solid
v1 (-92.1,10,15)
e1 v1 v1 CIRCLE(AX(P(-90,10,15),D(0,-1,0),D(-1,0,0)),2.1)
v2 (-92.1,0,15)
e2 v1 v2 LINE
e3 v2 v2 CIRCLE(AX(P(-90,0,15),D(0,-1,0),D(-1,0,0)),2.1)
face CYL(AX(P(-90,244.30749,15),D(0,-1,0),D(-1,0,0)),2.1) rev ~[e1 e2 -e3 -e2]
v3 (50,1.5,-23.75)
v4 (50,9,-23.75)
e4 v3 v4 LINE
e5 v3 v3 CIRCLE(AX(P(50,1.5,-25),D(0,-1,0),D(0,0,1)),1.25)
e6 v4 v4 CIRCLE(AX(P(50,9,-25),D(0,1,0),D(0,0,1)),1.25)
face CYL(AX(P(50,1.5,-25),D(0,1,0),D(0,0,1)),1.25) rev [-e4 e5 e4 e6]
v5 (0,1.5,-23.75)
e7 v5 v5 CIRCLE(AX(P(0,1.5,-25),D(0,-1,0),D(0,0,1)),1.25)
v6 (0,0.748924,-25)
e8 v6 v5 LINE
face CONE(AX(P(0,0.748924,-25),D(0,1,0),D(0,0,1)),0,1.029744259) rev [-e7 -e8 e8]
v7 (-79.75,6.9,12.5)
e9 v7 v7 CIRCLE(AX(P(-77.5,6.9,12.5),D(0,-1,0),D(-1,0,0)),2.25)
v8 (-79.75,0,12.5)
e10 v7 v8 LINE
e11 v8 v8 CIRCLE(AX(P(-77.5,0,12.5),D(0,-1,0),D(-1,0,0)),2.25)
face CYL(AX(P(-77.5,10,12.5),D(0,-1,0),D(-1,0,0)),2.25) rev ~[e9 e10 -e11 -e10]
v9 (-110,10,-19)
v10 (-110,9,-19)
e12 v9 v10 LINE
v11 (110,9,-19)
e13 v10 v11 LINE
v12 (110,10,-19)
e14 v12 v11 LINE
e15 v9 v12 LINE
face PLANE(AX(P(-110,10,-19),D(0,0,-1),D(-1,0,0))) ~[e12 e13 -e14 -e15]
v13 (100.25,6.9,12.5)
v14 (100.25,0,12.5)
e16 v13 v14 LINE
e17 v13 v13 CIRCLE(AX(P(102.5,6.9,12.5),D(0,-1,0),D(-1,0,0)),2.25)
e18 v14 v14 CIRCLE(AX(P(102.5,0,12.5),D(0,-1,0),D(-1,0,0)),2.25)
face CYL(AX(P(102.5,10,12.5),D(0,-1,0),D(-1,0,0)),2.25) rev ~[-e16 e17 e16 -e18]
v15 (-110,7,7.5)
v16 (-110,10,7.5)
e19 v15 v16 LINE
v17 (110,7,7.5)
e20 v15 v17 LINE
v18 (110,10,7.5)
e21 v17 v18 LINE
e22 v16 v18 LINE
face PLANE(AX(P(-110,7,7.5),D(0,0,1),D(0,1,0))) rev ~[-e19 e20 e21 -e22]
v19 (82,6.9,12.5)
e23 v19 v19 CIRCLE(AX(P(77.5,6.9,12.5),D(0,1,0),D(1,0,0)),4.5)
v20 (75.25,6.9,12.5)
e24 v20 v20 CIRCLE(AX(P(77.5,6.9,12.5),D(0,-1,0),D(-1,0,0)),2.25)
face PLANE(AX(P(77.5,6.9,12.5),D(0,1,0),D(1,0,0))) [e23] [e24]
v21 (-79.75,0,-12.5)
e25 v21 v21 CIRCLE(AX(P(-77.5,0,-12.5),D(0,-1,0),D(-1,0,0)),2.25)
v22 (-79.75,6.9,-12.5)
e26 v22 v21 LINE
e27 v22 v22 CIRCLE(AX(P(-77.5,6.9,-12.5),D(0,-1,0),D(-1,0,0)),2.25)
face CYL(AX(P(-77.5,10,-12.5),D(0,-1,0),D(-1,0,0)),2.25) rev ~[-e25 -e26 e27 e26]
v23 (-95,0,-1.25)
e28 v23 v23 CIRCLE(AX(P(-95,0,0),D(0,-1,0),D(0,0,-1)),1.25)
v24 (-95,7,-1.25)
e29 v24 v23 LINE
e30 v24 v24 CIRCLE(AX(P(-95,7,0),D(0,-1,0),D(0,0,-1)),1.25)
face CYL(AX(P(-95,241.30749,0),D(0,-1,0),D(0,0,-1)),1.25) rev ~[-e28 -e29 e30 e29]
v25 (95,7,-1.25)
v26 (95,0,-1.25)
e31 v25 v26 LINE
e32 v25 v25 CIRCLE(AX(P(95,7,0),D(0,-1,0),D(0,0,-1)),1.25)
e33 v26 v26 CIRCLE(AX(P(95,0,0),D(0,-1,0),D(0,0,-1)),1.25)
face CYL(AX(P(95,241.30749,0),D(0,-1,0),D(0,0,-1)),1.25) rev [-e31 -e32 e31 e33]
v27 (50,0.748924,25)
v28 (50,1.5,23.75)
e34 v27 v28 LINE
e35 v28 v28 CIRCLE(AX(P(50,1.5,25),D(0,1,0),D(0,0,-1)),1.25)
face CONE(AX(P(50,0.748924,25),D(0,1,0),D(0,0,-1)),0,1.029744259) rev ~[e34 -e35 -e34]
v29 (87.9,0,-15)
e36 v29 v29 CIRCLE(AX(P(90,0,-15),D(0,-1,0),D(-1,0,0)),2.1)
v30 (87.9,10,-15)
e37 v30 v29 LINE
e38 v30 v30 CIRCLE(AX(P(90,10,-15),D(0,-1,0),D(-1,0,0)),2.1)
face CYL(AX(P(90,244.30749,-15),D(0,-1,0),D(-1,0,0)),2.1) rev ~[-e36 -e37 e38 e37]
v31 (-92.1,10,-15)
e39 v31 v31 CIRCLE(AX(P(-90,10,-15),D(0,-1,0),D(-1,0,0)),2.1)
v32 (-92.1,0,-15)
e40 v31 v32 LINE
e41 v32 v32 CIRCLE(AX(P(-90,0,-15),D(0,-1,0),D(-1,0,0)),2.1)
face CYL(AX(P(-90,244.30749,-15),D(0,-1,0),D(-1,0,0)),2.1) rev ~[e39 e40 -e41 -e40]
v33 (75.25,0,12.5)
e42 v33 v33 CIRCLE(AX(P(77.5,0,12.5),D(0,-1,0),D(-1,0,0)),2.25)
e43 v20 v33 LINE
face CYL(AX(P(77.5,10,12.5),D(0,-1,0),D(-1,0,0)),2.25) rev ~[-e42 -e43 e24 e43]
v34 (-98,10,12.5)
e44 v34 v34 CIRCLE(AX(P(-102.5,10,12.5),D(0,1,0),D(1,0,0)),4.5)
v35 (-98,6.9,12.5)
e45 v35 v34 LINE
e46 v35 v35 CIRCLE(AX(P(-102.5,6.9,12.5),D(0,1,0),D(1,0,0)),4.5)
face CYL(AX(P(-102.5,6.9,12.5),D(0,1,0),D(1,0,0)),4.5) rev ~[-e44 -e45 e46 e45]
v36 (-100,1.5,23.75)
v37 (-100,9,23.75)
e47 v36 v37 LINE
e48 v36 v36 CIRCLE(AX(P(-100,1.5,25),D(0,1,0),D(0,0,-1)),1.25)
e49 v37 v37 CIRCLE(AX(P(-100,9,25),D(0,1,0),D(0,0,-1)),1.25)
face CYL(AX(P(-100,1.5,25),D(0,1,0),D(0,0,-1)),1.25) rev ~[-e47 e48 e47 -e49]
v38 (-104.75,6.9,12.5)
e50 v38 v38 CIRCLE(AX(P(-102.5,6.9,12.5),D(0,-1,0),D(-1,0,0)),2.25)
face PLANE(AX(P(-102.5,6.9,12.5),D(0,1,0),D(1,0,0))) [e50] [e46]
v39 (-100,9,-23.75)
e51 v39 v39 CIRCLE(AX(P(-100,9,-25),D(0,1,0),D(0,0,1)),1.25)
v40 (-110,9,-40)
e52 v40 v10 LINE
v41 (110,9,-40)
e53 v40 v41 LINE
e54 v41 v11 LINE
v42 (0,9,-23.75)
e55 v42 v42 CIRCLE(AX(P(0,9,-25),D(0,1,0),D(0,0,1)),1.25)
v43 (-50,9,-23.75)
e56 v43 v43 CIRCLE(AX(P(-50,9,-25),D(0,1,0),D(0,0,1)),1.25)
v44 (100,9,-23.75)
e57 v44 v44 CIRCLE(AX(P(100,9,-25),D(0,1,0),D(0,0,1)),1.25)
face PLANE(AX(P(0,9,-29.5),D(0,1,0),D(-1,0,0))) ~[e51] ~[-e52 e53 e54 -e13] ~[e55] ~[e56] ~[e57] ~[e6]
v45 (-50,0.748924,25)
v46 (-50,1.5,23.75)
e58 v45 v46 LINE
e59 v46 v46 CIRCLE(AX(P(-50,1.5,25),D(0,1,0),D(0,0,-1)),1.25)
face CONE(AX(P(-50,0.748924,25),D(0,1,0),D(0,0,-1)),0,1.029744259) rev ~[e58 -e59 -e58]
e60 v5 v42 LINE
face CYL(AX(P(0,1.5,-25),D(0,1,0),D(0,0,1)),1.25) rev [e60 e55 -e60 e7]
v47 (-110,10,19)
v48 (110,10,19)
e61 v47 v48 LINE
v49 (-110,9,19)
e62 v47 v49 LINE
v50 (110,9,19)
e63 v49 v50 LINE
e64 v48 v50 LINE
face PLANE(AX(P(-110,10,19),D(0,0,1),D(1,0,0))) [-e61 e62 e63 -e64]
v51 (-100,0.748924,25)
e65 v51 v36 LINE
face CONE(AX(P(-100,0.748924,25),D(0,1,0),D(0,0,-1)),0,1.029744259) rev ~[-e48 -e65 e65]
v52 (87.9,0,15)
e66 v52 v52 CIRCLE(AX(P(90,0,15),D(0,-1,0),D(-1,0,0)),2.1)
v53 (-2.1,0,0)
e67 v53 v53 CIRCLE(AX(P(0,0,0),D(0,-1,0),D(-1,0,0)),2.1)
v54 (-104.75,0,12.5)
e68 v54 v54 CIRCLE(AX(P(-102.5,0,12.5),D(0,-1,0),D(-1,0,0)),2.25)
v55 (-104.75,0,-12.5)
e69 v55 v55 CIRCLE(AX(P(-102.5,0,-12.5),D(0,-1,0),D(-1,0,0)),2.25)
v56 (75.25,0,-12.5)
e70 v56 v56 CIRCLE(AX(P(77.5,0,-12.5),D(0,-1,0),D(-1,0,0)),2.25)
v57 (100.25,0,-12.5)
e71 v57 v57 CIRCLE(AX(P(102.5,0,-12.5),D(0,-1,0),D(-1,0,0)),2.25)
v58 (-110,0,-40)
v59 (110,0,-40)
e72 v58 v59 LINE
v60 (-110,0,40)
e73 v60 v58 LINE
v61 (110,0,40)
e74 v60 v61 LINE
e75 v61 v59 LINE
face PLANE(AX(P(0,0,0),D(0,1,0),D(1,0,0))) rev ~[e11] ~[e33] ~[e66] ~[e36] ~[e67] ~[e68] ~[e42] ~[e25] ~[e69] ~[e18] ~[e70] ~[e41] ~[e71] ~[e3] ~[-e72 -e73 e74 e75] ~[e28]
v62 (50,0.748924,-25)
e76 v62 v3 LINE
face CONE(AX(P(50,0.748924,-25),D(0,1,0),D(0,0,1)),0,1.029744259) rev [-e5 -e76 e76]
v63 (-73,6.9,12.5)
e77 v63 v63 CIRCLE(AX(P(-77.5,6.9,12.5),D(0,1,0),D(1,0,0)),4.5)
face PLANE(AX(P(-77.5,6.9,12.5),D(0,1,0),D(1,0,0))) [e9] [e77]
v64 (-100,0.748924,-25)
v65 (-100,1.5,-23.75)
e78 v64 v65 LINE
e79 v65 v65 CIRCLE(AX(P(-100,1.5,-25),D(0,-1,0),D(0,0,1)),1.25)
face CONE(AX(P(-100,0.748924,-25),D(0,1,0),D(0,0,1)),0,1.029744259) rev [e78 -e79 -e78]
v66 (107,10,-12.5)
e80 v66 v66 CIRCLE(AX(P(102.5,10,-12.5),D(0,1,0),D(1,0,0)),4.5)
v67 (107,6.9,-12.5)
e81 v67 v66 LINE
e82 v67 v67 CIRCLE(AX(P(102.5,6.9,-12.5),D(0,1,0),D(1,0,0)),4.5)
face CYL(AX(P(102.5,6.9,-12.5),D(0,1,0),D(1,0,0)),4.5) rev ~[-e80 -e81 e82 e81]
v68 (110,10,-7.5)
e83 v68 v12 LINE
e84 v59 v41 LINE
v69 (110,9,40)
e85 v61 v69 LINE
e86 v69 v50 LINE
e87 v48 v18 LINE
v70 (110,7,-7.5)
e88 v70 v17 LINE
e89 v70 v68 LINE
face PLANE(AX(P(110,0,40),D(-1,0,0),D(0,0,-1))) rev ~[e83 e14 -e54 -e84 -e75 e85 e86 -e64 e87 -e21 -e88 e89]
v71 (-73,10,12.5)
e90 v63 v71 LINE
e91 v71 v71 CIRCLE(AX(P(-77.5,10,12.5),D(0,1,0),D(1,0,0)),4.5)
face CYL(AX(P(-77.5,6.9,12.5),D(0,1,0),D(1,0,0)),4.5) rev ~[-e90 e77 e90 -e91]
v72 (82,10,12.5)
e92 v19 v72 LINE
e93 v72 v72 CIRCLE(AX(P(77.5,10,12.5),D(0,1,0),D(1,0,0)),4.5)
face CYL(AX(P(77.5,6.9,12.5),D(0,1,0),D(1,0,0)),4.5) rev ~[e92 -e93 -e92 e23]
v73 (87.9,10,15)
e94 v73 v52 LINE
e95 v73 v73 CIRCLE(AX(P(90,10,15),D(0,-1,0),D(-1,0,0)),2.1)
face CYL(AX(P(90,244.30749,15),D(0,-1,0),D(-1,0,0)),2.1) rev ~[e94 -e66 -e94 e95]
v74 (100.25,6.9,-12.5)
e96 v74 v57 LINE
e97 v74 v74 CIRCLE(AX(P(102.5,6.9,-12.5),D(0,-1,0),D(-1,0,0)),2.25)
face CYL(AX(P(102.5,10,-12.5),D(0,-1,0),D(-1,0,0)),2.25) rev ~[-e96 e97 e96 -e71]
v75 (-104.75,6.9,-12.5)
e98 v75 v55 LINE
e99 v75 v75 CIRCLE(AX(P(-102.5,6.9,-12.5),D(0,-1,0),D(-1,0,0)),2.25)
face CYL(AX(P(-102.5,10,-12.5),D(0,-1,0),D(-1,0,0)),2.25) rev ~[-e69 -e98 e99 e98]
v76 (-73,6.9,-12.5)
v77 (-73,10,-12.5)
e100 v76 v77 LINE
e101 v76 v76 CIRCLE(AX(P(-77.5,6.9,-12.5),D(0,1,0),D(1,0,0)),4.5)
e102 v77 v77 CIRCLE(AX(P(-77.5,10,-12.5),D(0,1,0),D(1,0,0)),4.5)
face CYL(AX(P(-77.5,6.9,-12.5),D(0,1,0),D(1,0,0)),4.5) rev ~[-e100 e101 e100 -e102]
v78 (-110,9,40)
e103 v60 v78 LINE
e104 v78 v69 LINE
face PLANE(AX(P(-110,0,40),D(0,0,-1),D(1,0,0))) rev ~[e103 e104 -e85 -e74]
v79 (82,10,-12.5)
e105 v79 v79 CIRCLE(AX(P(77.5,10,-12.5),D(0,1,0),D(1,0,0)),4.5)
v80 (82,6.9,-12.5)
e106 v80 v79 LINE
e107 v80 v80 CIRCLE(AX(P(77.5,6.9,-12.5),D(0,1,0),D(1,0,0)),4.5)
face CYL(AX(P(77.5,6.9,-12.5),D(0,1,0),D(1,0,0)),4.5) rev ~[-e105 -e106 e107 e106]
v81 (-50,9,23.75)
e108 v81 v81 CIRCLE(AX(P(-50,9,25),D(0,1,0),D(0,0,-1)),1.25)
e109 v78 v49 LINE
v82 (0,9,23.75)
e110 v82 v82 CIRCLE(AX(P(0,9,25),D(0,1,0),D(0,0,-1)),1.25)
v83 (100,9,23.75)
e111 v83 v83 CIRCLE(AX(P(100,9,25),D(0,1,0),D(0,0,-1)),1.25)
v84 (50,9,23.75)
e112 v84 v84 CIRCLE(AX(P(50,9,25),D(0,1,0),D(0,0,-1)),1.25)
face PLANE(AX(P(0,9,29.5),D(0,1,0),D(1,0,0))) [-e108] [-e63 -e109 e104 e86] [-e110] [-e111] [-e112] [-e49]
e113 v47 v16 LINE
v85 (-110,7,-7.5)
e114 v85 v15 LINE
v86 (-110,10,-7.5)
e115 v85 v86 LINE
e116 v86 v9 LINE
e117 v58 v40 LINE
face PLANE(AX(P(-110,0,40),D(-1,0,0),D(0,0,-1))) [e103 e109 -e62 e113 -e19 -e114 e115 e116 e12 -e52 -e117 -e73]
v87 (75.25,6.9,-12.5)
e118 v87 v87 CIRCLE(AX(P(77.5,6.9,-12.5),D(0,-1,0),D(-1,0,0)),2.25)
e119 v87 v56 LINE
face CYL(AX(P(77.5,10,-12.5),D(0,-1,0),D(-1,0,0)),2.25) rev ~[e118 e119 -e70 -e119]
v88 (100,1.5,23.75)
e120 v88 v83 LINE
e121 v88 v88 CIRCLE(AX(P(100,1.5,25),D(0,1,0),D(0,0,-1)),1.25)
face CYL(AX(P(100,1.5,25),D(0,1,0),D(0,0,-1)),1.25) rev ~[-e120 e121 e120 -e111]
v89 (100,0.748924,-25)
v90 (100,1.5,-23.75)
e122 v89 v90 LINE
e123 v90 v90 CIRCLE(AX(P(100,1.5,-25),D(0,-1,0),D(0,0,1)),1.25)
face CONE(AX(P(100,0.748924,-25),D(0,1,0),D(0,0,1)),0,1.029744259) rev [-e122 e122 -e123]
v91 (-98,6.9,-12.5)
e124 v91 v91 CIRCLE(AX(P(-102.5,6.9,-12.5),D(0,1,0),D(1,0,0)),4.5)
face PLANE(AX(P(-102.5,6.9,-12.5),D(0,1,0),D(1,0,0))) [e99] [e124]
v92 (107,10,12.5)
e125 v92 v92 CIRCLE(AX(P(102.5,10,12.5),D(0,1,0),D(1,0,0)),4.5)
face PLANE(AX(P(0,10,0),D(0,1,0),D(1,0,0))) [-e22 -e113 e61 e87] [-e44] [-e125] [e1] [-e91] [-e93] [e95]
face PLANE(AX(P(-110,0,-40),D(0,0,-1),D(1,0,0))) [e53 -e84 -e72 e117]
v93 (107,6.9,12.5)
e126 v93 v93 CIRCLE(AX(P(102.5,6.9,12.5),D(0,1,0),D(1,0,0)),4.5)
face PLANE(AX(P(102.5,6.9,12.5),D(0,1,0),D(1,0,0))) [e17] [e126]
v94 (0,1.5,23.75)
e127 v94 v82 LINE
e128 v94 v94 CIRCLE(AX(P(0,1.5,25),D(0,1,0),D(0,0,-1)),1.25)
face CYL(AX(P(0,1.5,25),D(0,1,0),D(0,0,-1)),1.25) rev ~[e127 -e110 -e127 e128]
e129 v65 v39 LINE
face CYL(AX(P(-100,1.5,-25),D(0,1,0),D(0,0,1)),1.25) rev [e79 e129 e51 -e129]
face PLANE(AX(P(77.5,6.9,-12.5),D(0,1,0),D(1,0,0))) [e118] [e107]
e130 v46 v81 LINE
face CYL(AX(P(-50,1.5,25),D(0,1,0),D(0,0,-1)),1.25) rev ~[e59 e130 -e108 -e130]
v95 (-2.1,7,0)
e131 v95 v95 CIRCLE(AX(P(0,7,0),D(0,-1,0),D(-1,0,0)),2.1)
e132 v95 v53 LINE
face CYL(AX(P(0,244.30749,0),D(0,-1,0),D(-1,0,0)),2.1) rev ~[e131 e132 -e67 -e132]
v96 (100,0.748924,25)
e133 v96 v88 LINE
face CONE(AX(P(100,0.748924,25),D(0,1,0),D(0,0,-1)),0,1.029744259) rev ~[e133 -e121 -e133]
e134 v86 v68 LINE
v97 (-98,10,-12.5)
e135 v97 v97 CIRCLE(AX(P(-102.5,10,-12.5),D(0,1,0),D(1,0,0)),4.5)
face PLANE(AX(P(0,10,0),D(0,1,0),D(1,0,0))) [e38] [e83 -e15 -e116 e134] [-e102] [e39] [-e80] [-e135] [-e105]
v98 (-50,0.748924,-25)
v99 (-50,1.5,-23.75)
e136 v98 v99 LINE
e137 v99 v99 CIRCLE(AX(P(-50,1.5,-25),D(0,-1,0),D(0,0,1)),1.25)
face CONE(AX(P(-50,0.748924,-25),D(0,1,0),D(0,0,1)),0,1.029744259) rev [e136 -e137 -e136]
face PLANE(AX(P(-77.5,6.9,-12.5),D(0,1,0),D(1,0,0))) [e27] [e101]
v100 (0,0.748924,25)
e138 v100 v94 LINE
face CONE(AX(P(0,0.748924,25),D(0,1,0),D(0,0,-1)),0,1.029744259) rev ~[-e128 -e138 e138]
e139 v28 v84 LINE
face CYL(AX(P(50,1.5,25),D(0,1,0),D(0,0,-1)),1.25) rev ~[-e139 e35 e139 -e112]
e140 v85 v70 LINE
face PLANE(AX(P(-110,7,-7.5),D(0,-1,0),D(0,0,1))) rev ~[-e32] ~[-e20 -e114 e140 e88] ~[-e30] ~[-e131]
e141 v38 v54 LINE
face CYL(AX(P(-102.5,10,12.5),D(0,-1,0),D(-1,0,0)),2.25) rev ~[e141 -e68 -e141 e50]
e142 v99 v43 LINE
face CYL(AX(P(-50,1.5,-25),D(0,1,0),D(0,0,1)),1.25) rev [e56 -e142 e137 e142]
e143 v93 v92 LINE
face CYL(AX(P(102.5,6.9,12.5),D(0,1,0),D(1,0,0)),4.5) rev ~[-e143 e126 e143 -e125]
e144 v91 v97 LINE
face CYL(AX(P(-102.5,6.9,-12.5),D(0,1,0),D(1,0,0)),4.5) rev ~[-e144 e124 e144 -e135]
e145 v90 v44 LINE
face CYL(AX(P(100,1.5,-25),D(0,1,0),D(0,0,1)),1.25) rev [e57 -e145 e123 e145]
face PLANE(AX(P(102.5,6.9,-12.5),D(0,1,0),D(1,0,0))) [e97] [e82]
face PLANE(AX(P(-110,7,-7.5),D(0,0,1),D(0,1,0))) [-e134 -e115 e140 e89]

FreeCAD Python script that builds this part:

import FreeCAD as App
import Part
import Sketcher

V = App.Vector
Q = App.Units.Quantity

doc = App.newDocument("Part")
body = doc.addObject("PartDesign::Body", "Body")

# Sketch on XZ plane
sketch1 = body.newObject("Sketcher::SketchObject", "Sketch")
sketch1.AttachmentSupport = (doc.getObject("XZ_Plane"), [""])
sketch1.MapMode = "FlatFace"
sketch1.addGeometry(Part.LineSegment(V(-110, -40, 0), V(-110, 40, 0)), False)
sketch1.addGeometry(Part.LineSegment(V(-110, 40, 0), V(110, 40, 0)), False)
sketch1.addGeometry(Part.LineSegment(V(110, 40, 0), V(110, -40, 0)), False)
sketch1.addGeometry(Part.LineSegment(V(110, -40, 0), V(-110, -40, 0)), False)
sketch1.addConstraint(Sketcher.Constraint("Coincident", 0, 2, 1, 1))
sketch1.addConstraint(Sketcher.Constraint("Coincident", 1, 2, 2, 1))
sketch1.addConstraint(Sketcher.Constraint("Coincident", 2, 2, 3, 1))
sketch1.addConstraint(Sketcher.Constraint("Coincident", 3, 2, 0, 1))
sketch1.addConstraint(Sketcher.Constraint("Vertical", 0))
sketch1.addConstraint(Sketcher.Constraint("Horizontal", 1))
sketch1.addConstraint(Sketcher.Constraint("Vertical", 2))
sketch1.addConstraint(Sketcher.Constraint("Horizontal", 3))
sketch1.addConstraint(Sketcher.Constraint("Symmetric", 0, 2, 2, 2, -1, 1))
sketch1.addConstraint(Sketcher.Constraint("DistanceX", 1, 1, 1, 2, Q("220 mm")))
sketch1.addConstraint(Sketcher.Constraint("DistanceY", 0, 1, 0, 2, Q("80 mm")))
pad1 = body.newObject("PartDesign::Pad", "Pad")
pad1.Profile = sketch1
pad1.Length = 10
pad1.Reversed = True

# Sketch on XZ plane
sketch2 = body.newObject("Sketcher::SketchObject", "Sketch001")
sketch2.AttachmentSupport = (doc.getObject("XZ_Plane"), [""])
sketch2.MapMode = "FlatFace"
sketch2.AttachmentOffset = App.Placement(V(0, 0, -10), App.Rotation())
sketch2.addGeometry(Part.Circle(V(-102.5, -12.5, 0), V(0, 0, 1), 2.25), False)
sketch2.addGeometry(Part.Circle(V(-77.5, -12.5, 0), V(0, 0, 1), 2.25), False)
sketch2.addGeometry(Part.Circle(V(-77.5, 12.5, 0), V(0, 0, 1), 2.25), False)
sketch2.addGeometry(Part.Circle(V(-102.5, 12.5, 0), V(0, 0, 1), 2.25), False)
sketch2.addGeometry(Part.Circle(V(102.5, 12.5, 0), V(0, 0, 1), 2.25), False)
sketch2.addGeometry(Part.Circle(V(77.5, 12.5, 0), V(0, 0, 1), 2.25), False)
sketch2.addGeometry(Part.Circle(V(77.5, -12.5, 0), V(0, 0, 1), 2.25), False)
sketch2.addGeometry(Part.Circle(V(102.5, -12.5, 0), V(0, 0, 1), 2.25), False)
sketch2.addConstraint(Sketcher.Constraint("Equal", 0, 1))
sketch2.addConstraint(Sketcher.Constraint("Equal", 1, 2))
sketch2.addConstraint(Sketcher.Constraint("Equal", 2, 3))
sketch2.addConstraint(Sketcher.Constraint("Equal", 3, 4))
sketch2.addConstraint(Sketcher.Constraint("Equal", 4, 5))
sketch2.addConstraint(Sketcher.Constraint("Equal", 5, 6))
sketch2.addConstraint(Sketcher.Constraint("Equal", 6, 7))
sketch2.addConstraint(Sketcher.Constraint("Symmetric", 0, 3, 4, 3, -1, 1))
sketch2.addConstraint(Sketcher.Constraint("Symmetric", 1, 3, 5, 3, -1, 1))
sketch2.addConstraint(Sketcher.Constraint("Symmetric", 2, 3, 6, 3, -1, 1))
sketch2.addConstraint(Sketcher.Constraint("Symmetric", 3, 3, 7, 3, -1, 1))
sketch2.addConstraint(Sketcher.Constraint("Symmetric", 3, 3, 4, 3, -2))
sketch2.addConstraint(Sketcher.Constraint("Symmetric", 2, 3, 5, 3, -2))
sketch2.addConstraint(Sketcher.Constraint("Horizontal", 0, 3, 1, 3))
sketch2.addConstraint(Sketcher.Constraint("Diameter", 0, Q("4.5 mm")))
sketch2.addConstraint(Sketcher.Constraint("DistanceX", 0, 3, 1, 3, Q("25 mm")))
sketch2.addConstraint(Sketcher.Constraint("DistanceY", 1, 3, 2, 3, Q("25 mm")))
sketch2.addConstraint(Sketcher.Constraint("DistanceX", 2, 3, 4, 3, Q("180 mm")))
doc.recompute()
hole = body.newObject("PartDesign::Hole", "Hole")
hole.Profile = sketch2
hole.ThreadType = "None"
hole.Diameter = 4.5
hole.DepthType = "Dimension"
hole.Depth = 11.5
hole.DrillPoint = "Angled"
hole.DrillPointAngle = 118
hole.HoleCutType = "Counterbore"
hole.HoleCutDiameter = 9
hole.HoleCutDepth = 3.1
hole.Reversed = True

# Sketch on YZ plane
sketch3 = body.newObject("Sketcher::SketchObject", "Sketch002")
sketch3.AttachmentSupport = (doc.getObject("YZ_Plane"), [""])
sketch3.MapMode = "FlatFace"
sketch3.AttachmentOffset = App.Placement(V(0, 0, -50), App.Rotation())
sketch3.addGeometry(Part.LineSegment(V(0.748924, -25, 0), V(10, -25, 0)), False)
sketch3.addGeometry(Part.LineSegment(V(10, -25, 0), V(10, -23.75, 0)), False)
sketch3.addGeometry(Part.LineSegment(V(10, -23.75, 0), V(1.5, -23.75, 0)), False)
sketch3.addGeometry(Part.LineSegment(V(1.5, -23.75, 0), V(0.748924, -25, 0)), False)
sketch3.addGeometry(Part.LineSegment(V(10, -25, 0), V(0.748924, -25, 0)), True)  # axis
sketch3.addConstraint(Sketcher.Constraint("Coincident", 0, 2, 1, 1))
sketch3.addConstraint(Sketcher.Constraint("Coincident", 1, 2, 2, 1))
sketch3.addConstraint(Sketcher.Constraint("Coincident", 2, 2, 3, 1))
sketch3.addConstraint(Sketcher.Constraint("Coincident", 3, 2, 0, 1))
sketch3.addConstraint(Sketcher.Constraint("Horizontal", 0))
sketch3.addConstraint(Sketcher.Constraint("Vertical", 1))
sketch3.addConstraint(Sketcher.Constraint("Horizontal", 2))
sketch3.addConstraint(Sketcher.Constraint("Horizontal", 4))
sketch3.addConstraint(Sketcher.Constraint("Coincident", 4, 1, 0, 2))
sketch3.addConstraint(Sketcher.Constraint("Equal", 0, 4))
sketch3.addConstraint(Sketcher.Constraint("Angle", 3, Q("-121 deg")))
sketch3.addConstraint(Sketcher.Constraint("DistanceX", 2, 2, 2, 1, Q("8.5 mm")))
sketch3.addConstraint(Sketcher.Constraint("DistanceX", -1, 1, 0, 2, Q("10 mm")))
sketch3.addConstraint(Sketcher.Constraint("DistanceY", 0, 2, -1, 1, Q("25 mm")))
sketch3.addConstraint(Sketcher.Constraint("DistanceY", 1, 1, 1, 2, Q("1.25 mm")))
groove = body.newObject("PartDesign::Groove", "Groove")
groove.Profile = sketch3
groove.ReferenceAxis = (sketch3, ["Axis0"])
groove.Angle = 360
doc.recompute()

linearpattern = body.newObject("PartDesign::LinearPattern", "LinearPattern")
linearpattern.Originals = [groove]
linearpattern.Direction = (doc.getObject("X_Axis"), [""])
linearpattern.Mode = "offset"
linearpattern.Offset = 50
linearpattern.Occurrences = 2
body.Tip = linearpattern
doc.recompute()

linearpattern2 = body.newObject("PartDesign::LinearPattern", "LinearPattern001")
linearpattern2.Originals = [groove]
linearpattern2.Direction = (doc.getObject("X_Axis"), [""])
linearpattern2.Mode = "offset"
linearpattern2.Offset = 100
linearpattern2.Occurrences = 2
body.Tip = linearpattern2
doc.recompute()

linearpattern3 = body.newObject("PartDesign::LinearPattern", "LinearPattern002")
linearpattern3.Originals = [groove]
linearpattern3.Direction = (doc.getObject("X_Axis"), [""])
linearpattern3.Mode = "offset"
linearpattern3.Offset = 150
linearpattern3.Occurrences = 2
body.Tip = linearpattern3
doc.recompute()

linearpattern4 = body.newObject("PartDesign::LinearPattern", "LinearPattern003")
linearpattern4.Originals = [groove]
linearpattern4.Direction = (doc.getObject("X_Axis"), [""])
linearpattern4.Mode = "offset"
linearpattern4.Offset = 50
linearpattern4.Occurrences = 2
linearpattern4.Reversed = True
body.Tip = linearpattern4
doc.recompute()

linearpattern5 = body.newObject("PartDesign::LinearPattern", "LinearPattern004")
linearpattern5.Originals = [groove]
linearpattern5.Direction = (doc.getObject("X_Axis"), [""])
linearpattern5.Mode = "offset"
linearpattern5.Offset = 200
linearpattern5.Occurrences = 2
body.Tip = linearpattern5
doc.recompute()

linearpattern6 = body.newObject("PartDesign::LinearPattern", "LinearPattern005")
linearpattern6.Originals = [groove]
linearpattern6.Direction = (doc.getObject("X_Axis"), [""])
linearpattern6.Mode = "offset"
linearpattern6.Offset = 250
linearpattern6.Occurrences = 2
body.Tip = linearpattern6

# Sketch on YZ plane
sketch4 = body.newObject("Sketcher::SketchObject", "Sketch003")
sketch4.AttachmentSupport = (doc.getObject("YZ_Plane"), [""])
sketch4.MapMode = "FlatFace"
sketch4.AttachmentOffset = App.Placement(V(0, 0, -110), App.Rotation())
sketch4.addGeometry(Part.LineSegment(V(10, -7.5, 0), V(7, -7.5, 0)), False)
sketch4.addGeometry(Part.LineSegment(V(7, -7.5, 0), V(7, 7.5, 0)), False)
sketch4.addGeometry(Part.LineSegment(V(7, 7.5, 0), V(10, 7.5, 0)), False)
sketch4.addGeometry(Part.LineSegment(V(10, 7.5, 0), V(10, -7.5, 0)), False)
sketch4.addConstraint(Sketcher.Constraint("Coincident", 0, 2, 1, 1))
sketch4.addConstraint(Sketcher.Constraint("Coincident", 1, 2, 2, 1))
sketch4.addConstraint(Sketcher.Constraint("Coincident", 2, 2, 3, 1))
sketch4.addConstraint(Sketcher.Constraint("Coincident", 3, 2, 0, 1))
sketch4.addConstraint(Sketcher.Constraint("Horizontal", 0))
sketch4.addConstraint(Sketcher.Constraint("Vertical", 1))
sketch4.addConstraint(Sketcher.Constraint("Horizontal", 2))
sketch4.addConstraint(Sketcher.Constraint("Vertical", 3))
sketch4.addConstraint(Sketcher.Constraint("DistanceX", 0, 2, 0, 1, Q("3 mm")))
sketch4.addConstraint(Sketcher.Constraint("DistanceY", 1, 1, 1, 2, Q("15 mm")))
sketch4.addConstraint(Sketcher.Constraint("DistanceX", -1, 1, 0, 2, Q("7 mm")))
sketch4.addConstraint(Sketcher.Constraint("DistanceY", 0, 2, -1, 1, Q("7.5 mm")))
pocket1 = body.newObject("PartDesign::Pocket", "Pocket")
pocket1.Profile = sketch4
pocket1.Type = "ThroughAll"
pocket1.Reversed = True
doc.recompute()

mirrored = body.newObject("PartDesign::Mirrored", "Mirrored")
mirrored.Originals = [groove]
mirrored.MirrorPlane = (doc.getObject("XY_Plane"), [""])
body.Tip = mirrored

# Sketch on YZ plane
sketch5 = body.newObject("Sketcher::SketchObject", "Sketch004")
sketch5.AttachmentSupport = (doc.getObject("YZ_Plane"), [""])
sketch5.MapMode = "FlatFace"
sketch5.addGeometry(Part.LineSegment(V(10, 25, 0), V(0.748924, 25, 0)), False)
sketch5.addGeometry(Part.LineSegment(V(0.748924, 25, 0), V(1.5, 23.75, 0)), False)
sketch5.addGeometry(Part.LineSegment(V(1.5, 23.75, 0), V(10, 23.75, 0)), False)
sketch5.addGeometry(Part.LineSegment(V(10, 23.75, 0), V(10, 25, 0)), False)
sketch5.addGeometry(Part.LineSegment(V(0.748924, 25, 0), V(10, 25, 0)), True)  # axis
sketch5.addConstraint(Sketcher.Constraint("Coincident", 0, 2, 1, 1))
sketch5.addConstraint(Sketcher.Constraint("Coincident", 1, 2, 2, 1))
sketch5.addConstraint(Sketcher.Constraint("Coincident", 2, 2, 3, 1))
sketch5.addConstraint(Sketcher.Constraint("Coincident", 3, 2, 0, 1))
sketch5.addConstraint(Sketcher.Constraint("Horizontal", 0))
sketch5.addConstraint(Sketcher.Constraint("Horizontal", 2))
sketch5.addConstraint(Sketcher.Constraint("Vertical", 3))
sketch5.addConstraint(Sketcher.Constraint("Horizontal", 4))
sketch5.addConstraint(Sketcher.Constraint("Coincident", 4, 1, 0, 2))
sketch5.addConstraint(Sketcher.Constraint("Vertical", 2, 2, 4, 2))
sketch5.addConstraint(Sketcher.Constraint("Angle", 1, Q("-59 deg")))
sketch5.addConstraint(Sketcher.Constraint("DistanceX", 2, 1, 2, 2, Q("8.5 mm")))
sketch5.addConstraint(Sketcher.Constraint("DistanceY", -1, 1, 0, 2, Q("25 mm")))
sketch5.addConstraint(Sketcher.Constraint("DistanceX", -1, 1, 2, 2, Q("10 mm")))
sketch5.addConstraint(Sketcher.Constraint("DistanceY", 3, 1, 3, 2, Q("1.25 mm")))
groove2 = body.newObject("PartDesign::Groove", "Groove001")
groove2.Profile = sketch5
groove2.ReferenceAxis = (sketch5, ["Axis0"])
groove2.Angle = 360

# Sketch on YZ plane
sketch6 = body.newObject("Sketcher::SketchObject", "Sketch005")
sketch6.AttachmentSupport = (doc.getObject("YZ_Plane"), [""])
sketch6.MapMode = "FlatFace"
sketch6.AttachmentOffset = App.Placement(V(0, 0, 50), App.Rotation())
sketch6.addGeometry(Part.LineSegment(V(10, 25, 0), V(0.748924, 25, 0)), False)
sketch6.addGeometry(Part.LineSegment(V(0.748924, 25, 0), V(1.5, 23.75, 0)), False)
sketch6.addGeometry(Part.LineSegment(V(1.5, 23.75, 0), V(10, 23.75, 0)), False)
sketch6.addGeometry(Part.LineSegment(V(10, 23.75, 0), V(10, 25, 0)), False)
sketch6.addGeometry(Part.LineSegment(V(0.748924, 25, 0), V(10, 25, 0)), True)  # axis
sketch6.addConstraint(Sketcher.Constraint("Coincident", 0, 2, 1, 1))
sketch6.addConstraint(Sketcher.Constraint("Coincident", 1, 2, 2, 1))
sketch6.addConstraint(Sketcher.Constraint("Coincident", 2, 2, 3, 1))
sketch6.addConstraint(Sketcher.Constraint("Coincident", 3, 2, 0, 1))
sketch6.addConstraint(Sketcher.Constraint("Horizontal", 0))
sketch6.addConstraint(Sketcher.Constraint("Horizontal", 2))
sketch6.addConstraint(Sketcher.Constraint("Vertical", 3))
sketch6.addConstraint(Sketcher.Constraint("Horizontal", 4))
sketch6.addConstraint(Sketcher.Constraint("Coincident", 4, 1, 0, 2))
sketch6.addConstraint(Sketcher.Constraint("Vertical", 2, 2, 4, 2))
sketch6.addConstraint(Sketcher.Constraint("Angle", 1, Q("-59 deg")))
sketch6.addConstraint(Sketcher.Constraint("DistanceX", 2, 1, 2, 2, Q("8.5 mm")))
sketch6.addConstraint(Sketcher.Constraint("DistanceY", -1, 1, 0, 2, Q("25 mm")))
sketch6.addConstraint(Sketcher.Constraint("DistanceX", -1, 1, 2, 2, Q("10 mm")))
sketch6.addConstraint(Sketcher.Constraint("DistanceY", 3, 1, 3, 2, Q("1.25 mm")))
groove3 = body.newObject("PartDesign::Groove", "Groove002")
groove3.Profile = sketch6
groove3.ReferenceAxis = (sketch6, ["Axis0"])
groove3.Angle = 360

# Sketch on YZ plane
sketch7 = body.newObject("Sketcher::SketchObject", "Sketch006")
sketch7.AttachmentSupport = (doc.getObject("YZ_Plane"), [""])
sketch7.MapMode = "FlatFace"
sketch7.AttachmentOffset = App.Placement(V(0, 0, 100), App.Rotation())
sketch7.addGeometry(Part.LineSegment(V(10, 25, 0), V(0.748924, 25, 0)), False)
sketch7.addGeometry(Part.LineSegment(V(0.748924, 25, 0), V(1.5, 23.75, 0)), False)
sketch7.addGeometry(Part.LineSegment(V(1.5, 23.75, 0), V(10, 23.75, 0)), False)
sketch7.addGeometry(Part.LineSegment(V(10, 23.75, 0), V(10, 25, 0)), False)
sketch7.addGeometry(Part.LineSegment(V(0.748924, 25, 0), V(10, 25, 0)), True)  # axis
sketch7.addConstraint(Sketcher.Constraint("Coincident", 0, 2, 1, 1))
sketch7.addConstraint(Sketcher.Constraint("Coincident", 1, 2, 2, 1))
sketch7.addConstraint(Sketcher.Constraint("Coincident", 2, 2, 3, 1))
sketch7.addConstraint(Sketcher.Constraint("Coincident", 3, 2, 0, 1))
sketch7.addConstraint(Sketcher.Constraint("Horizontal", 0))
sketch7.addConstraint(Sketcher.Constraint("Horizontal", 2))
sketch7.addConstraint(Sketcher.Constraint("Vertical", 3))
sketch7.addConstraint(Sketcher.Constraint("Horizontal", 4))
sketch7.addConstraint(Sketcher.Constraint("Coincident", 4, 1, 0, 2))
sketch7.addConstraint(Sketcher.Constraint("Vertical", 2, 2, 4, 2))
sketch7.addConstraint(Sketcher.Constraint("Angle", 1, Q("-59 deg")))
sketch7.addConstraint(Sketcher.Constraint("DistanceX", 2, 1, 2, 2, Q("8.5 mm")))
sketch7.addConstraint(Sketcher.Constraint("DistanceY", -1, 1, 0, 2, Q("25 mm")))
sketch7.addConstraint(Sketcher.Constraint("DistanceX", -1, 1, 2, 2, Q("10 mm")))
sketch7.addConstraint(Sketcher.Constraint("DistanceY", 3, 1, 3, 2, Q("1.25 mm")))
groove4 = body.newObject("PartDesign::Groove", "Groove003")
groove4.Profile = sketch7
groove4.ReferenceAxis = (sketch7, ["Axis0"])
groove4.Angle = 360

# Sketch on YZ plane
sketch8 = body.newObject("Sketcher::SketchObject", "Sketch007")
sketch8.AttachmentSupport = (doc.getObject("YZ_Plane"), [""])
sketch8.MapMode = "FlatFace"
sketch8.AttachmentOffset = App.Placement(V(0, 0, -100), App.Rotation())
sketch8.addGeometry(Part.LineSegment(V(10, 25, 0), V(0.748924, 25, 0)), False)
sketch8.addGeometry(Part.LineSegment(V(0.748924, 25, 0), V(1.5, 23.75, 0)), False)
sketch8.addGeometry(Part.LineSegment(V(1.5, 23.75, 0), V(10, 23.75, 0)), False)
sketch8.addGeometry(Part.LineSegment(V(10, 23.75, 0), V(10, 25, 0)), False)
sketch8.addGeometry(Part.LineSegment(V(0.748924, 25, 0), V(10, 25, 0)), True)  # axis
sketch8.addConstraint(Sketcher.Constraint("Coincident", 0, 2, 1, 1))
sketch8.addConstraint(Sketcher.Constraint("Coincident", 1, 2, 2, 1))
sketch8.addConstraint(Sketcher.Constraint("Coincident", 2, 2, 3, 1))
sketch8.addConstraint(Sketcher.Constraint("Coincident", 3, 2, 0, 1))
sketch8.addConstraint(Sketcher.Constraint("Horizontal", 0))
sketch8.addConstraint(Sketcher.Constraint("Horizontal", 2))
sketch8.addConstraint(Sketcher.Constraint("Vertical", 3))
sketch8.addConstraint(Sketcher.Constraint("Horizontal", 4))
sketch8.addConstraint(Sketcher.Constraint("Coincident", 4, 1, 0, 2))
sketch8.addConstraint(Sketcher.Constraint("Vertical", 2, 2, 4, 2))
sketch8.addConstraint(Sketcher.Constraint("Angle", 1, Q("-59 deg")))
sketch8.addConstraint(Sketcher.Constraint("DistanceX", 2, 1, 2, 2, Q("8.5 mm")))
sketch8.addConstraint(Sketcher.Constraint("DistanceY", -1, 1, 0, 2, Q("25 mm")))
sketch8.addConstraint(Sketcher.Constraint("DistanceX", -1, 1, 2, 2, Q("10 mm")))
sketch8.addConstraint(Sketcher.Constraint("DistanceY", 3, 1, 3, 2, Q("1.25 mm")))
groove5 = body.newObject("PartDesign::Groove", "Groove004")
groove5.Profile = sketch8
groove5.ReferenceAxis = (sketch8, ["Axis0"])
groove5.Angle = 360

# Sketch on YZ plane
sketch9 = body.newObject("Sketcher::SketchObject", "Sketch008")
sketch9.AttachmentSupport = (doc.getObject("YZ_Plane"), [""])
sketch9.MapMode = "FlatFace"
sketch9.AttachmentOffset = App.Placement(V(0, 0, 150), App.Rotation())
sketch9.addGeometry(Part.LineSegment(V(10, 25, 0), V(0.748924, 25, 0)), False)
sketch9.addGeometry(Part.LineSegment(V(0.748924, 25, 0), V(1.5, 23.75, 0)), False)
sketch9.addGeometry(Part.LineSegment(V(1.5, 23.75, 0), V(10, 23.75, 0)), False)
sketch9.addGeometry(Part.LineSegment(V(10, 23.75, 0), V(10, 25, 0)), False)
sketch9.addGeometry(Part.LineSegment(V(0.748924, 25, 0), V(10, 25, 0)), True)  # axis
sketch9.addConstraint(Sketcher.Constraint("Coincident", 0, 2, 1, 1))
sketch9.addConstraint(Sketcher.Constraint("Coincident", 1, 2, 2, 1))
sketch9.addConstraint(Sketcher.Constraint("Coincident", 2, 2, 3, 1))
sketch9.addConstraint(Sketcher.Constraint("Coincident", 3, 2, 0, 1))
sketch9.addConstraint(Sketcher.Constraint("Horizontal", 0))
sketch9.addConstraint(Sketcher.Constraint("Horizontal", 2))
sketch9.addConstraint(Sketcher.Constraint("Vertical", 3))
sketch9.addConstraint(Sketcher.Constraint("Horizontal", 4))
sketch9.addConstraint(Sketcher.Constraint("Coincident", 4, 1, 0, 2))
sketch9.addConstraint(Sketcher.Constraint("Vertical", 2, 2, 4, 2))
sketch9.addConstraint(Sketcher.Constraint("Angle", 1, Q("-59 deg")))
sketch9.addConstraint(Sketcher.Constraint("DistanceX", 2, 1, 2, 2, Q("8.5 mm")))
sketch9.addConstraint(Sketcher.Constraint("DistanceY", -1, 1, 0, 2, Q("25 mm")))
sketch9.addConstraint(Sketcher.Constraint("DistanceX", -1, 1, 2, 2, Q("10 mm")))
sketch9.addConstraint(Sketcher.Constraint("DistanceY", 3, 1, 3, 2, Q("1.25 mm")))
groove6 = body.newObject("PartDesign::Groove", "Groove005")
groove6.Profile = sketch9
groove6.ReferenceAxis = (sketch9, ["Axis0"])
groove6.Angle = 360

# Sketch on YZ plane
sketch10 = body.newObject("Sketcher::SketchObject", "Sketch009")
sketch10.AttachmentSupport = (doc.getObject("YZ_Plane"), [""])
sketch10.MapMode = "FlatFace"
sketch10.AttachmentOffset = App.Placement(V(0, 0, 200), App.Rotation())
sketch10.addGeometry(Part.LineSegment(V(10, 25, 0), V(0.748924, 25, 0)), False)
sketch10.addGeometry(Part.LineSegment(V(0.748924, 25, 0), V(1.5, 23.75, 0)), False)
sketch10.addGeometry(Part.LineSegment(V(1.5, 23.75, 0), V(10, 23.75, 0)), False)
sketch10.addGeometry(Part.LineSegment(V(10, 23.75, 0), V(10, 25, 0)), False)
sketch10.addGeometry(Part.LineSegment(V(0.748924, 25, 0), V(10, 25, 0)), True)  # axis
sketch10.addConstraint(Sketcher.Constraint("Coincident", 0, 2, 1, 1))
sketch10.addConstraint(Sketcher.Constraint("Coincident", 1, 2, 2, 1))
sketch10.addConstraint(Sketcher.Constraint("Coincident", 2, 2, 3, 1))
sketch10.addConstraint(Sketcher.Constraint("Coincident", 3, 2, 0, 1))
sketch10.addConstraint(Sketcher.Constraint("Horizontal", 0))
sketch10.addConstraint(Sketcher.Constraint("Horizontal", 2))
sketch10.addConstraint(Sketcher.Constraint("Vertical", 3))
sketch10.addConstraint(Sketcher.Constraint("Horizontal", 4))
sketch10.addConstraint(Sketcher.Constraint("Coincident", 4, 1, 0, 2))
sketch10.addConstraint(Sketcher.Constraint("Vertical", 2, 2, 4, 2))
sketch10.addConstraint(Sketcher.Constraint("Angle", 1, Q("-59 deg")))
sketch10.addConstraint(Sketcher.Constraint("DistanceX", 2, 1, 2, 2, Q("8.5 mm")))
sketch10.addConstraint(Sketcher.Constraint("DistanceY", -1, 1, 0, 2, Q("25 mm")))
sketch10.addConstraint(Sketcher.Constraint("DistanceX", -1, 1, 2, 2, Q("10 mm")))
sketch10.addConstraint(Sketcher.Constraint("DistanceY", 3, 1, 3, 2, Q("1.25 mm")))
groove7 = body.newObject("PartDesign::Groove", "Groove006")
groove7.Profile = sketch10
groove7.ReferenceAxis = (sketch10, ["Axis0"])
groove7.Angle = 360

# Sketch on XZ plane
sketch11 = body.newObject("Sketcher::SketchObject", "Sketch010")
sketch11.AttachmentSupport = (doc.getObject("XZ_Plane"), [""])
sketch11.MapMode = "FlatFace"
sketch11.AttachmentOffset = App.Placement(V(0, 0, -10), App.Rotation())
sketch11.addGeometry(Part.Circle(V(90, 15, 0), V(0, 0, 1), 2.1), False)
sketch11.addGeometry(Part.Circle(V(90, -15, 0), V(0, 0, 1), 2.1), False)
sketch11.addGeometry(Part.Circle(V(-90, -15, 0), V(0, 0, 1), 2.1), False)
sketch11.addGeometry(Part.Circle(V(-90, 15, 0), V(0, 0, 1), 2.1), False)
sketch11.addGeometry(Part.Circle(V(0, 0, 0), V(0, 0, 1), 2.1), False)
sketch11.addConstraint(Sketcher.Constraint("Coincident", 4, 3, -1, 1))
sketch11.addConstraint(Sketcher.Constraint("Equal", 0, 1))
sketch11.addConstraint(Sketcher.Constraint("Equal", 1, 2))
sketch11.addConstraint(Sketcher.Constraint("Equal", 2, 3))
sketch11.addConstraint(Sketcher.Constraint("Equal", 3, 4))
sketch11.addConstraint(Sketcher.Constraint("Symmetric", 0, 3, 2, 3, -1, 1))
sketch11.addConstraint(Sketcher.Constraint("Symmetric", 1, 3, 3, 3, -1, 1))
sketch11.addConstraint(Sketcher.Constraint("Symmetric", 1, 3, 2, 3, -2))
sketch11.addConstraint(Sketcher.Constraint("Diameter", 0, Q("4.2 mm")))
sketch11.addConstraint(Sketcher.Constraint("DistanceX", -1, 1, 0, 3, Q("90 mm")))
sketch11.addConstraint(Sketcher.Constraint("DistanceY", -1, 1, 0, 3, Q("15 mm")))
doc.recompute()
hole2 = body.newObject("PartDesign::Hole", "Hole001")
hole2.Profile = sketch11
hole2.ThreadType = "None"
hole2.Diameter = 4.2
hole2.DepthType = "ThroughAll"
hole2.Reversed = True

# Sketch on XZ plane
sketch12 = body.newObject("Sketcher::SketchObject", "Sketch011")
sketch12.AttachmentSupport = (doc.getObject("XZ_Plane"), [""])
sketch12.MapMode = "FlatFace"
sketch12.AttachmentOffset = App.Placement(V(0, 0, -10), App.Rotation())
sketch12.addGeometry(Part.LineSegment(V(-110, 19, 0), V(-110, 40, 0)), False)
sketch12.addGeometry(Part.LineSegment(V(-110, 40, 0), V(110, 40, 0)), False)
sketch12.addGeometry(Part.LineSegment(V(110, 40, 0), V(110, 19, 0)), False)
sketch12.addGeometry(Part.LineSegment(V(110, 19, 0), V(-110, 19, 0)), False)
sketch12.addConstraint(Sketcher.Constraint("Coincident", 0, 2, 1, 1))
sketch12.addConstraint(Sketcher.Constraint("Coincident", 1, 2, 2, 1))
sketch12.addConstraint(Sketcher.Constraint("Coincident", 2, 2, 3, 1))
sketch12.addConstraint(Sketcher.Constraint("Coincident", 3, 2, 0, 1))
sketch12.addConstraint(Sketcher.Constraint("Vertical", 0))
sketch12.addConstraint(Sketcher.Constraint("Horizontal", 1))
sketch12.addConstraint(Sketcher.Constraint("Vertical", 2))
sketch12.addConstraint(Sketcher.Constraint("Horizontal", 3))
sketch12.addConstraint(Sketcher.Constraint("DistanceX", 1, 1, 1, 2, Q("220 mm")))
sketch12.addConstraint(Sketcher.Constraint("DistanceY", 0, 1, 0, 2, Q("21 mm")))
sketch12.addConstraint(Sketcher.Constraint("DistanceX", 0, 2, -1, 1, Q("110 mm")))
sketch12.addConstraint(Sketcher.Constraint("DistanceY", -1, 1, 0, 2, Q("40 mm")))
pocket2 = body.newObject("PartDesign::Pocket", "Pocket001")
pocket2.Profile = sketch12
pocket2.Length = 1
pocket2.Reversed = True
doc.recompute()

mirrored2 = body.newObject("PartDesign::Mirrored", "Mirrored001")
mirrored2.Originals = [pocket2]
mirrored2.MirrorPlane = (doc.getObject("XY_Plane"), [""])
body.Tip = mirrored2

# Sketch on XZ plane
sketch13 = body.newObject("Sketcher::SketchObject", "Sketch012")
sketch13.AttachmentSupport = (doc.getObject("XZ_Plane"), [""])
sketch13.MapMode = "FlatFace"
sketch13.AttachmentOffset = App.Placement(V(0, 0, -7), App.Rotation())
sketch13.addGeometry(Part.Circle(V(-95, 0, 0), V(0, 0, 1), 1.25), False)
sketch13.addConstraint(Sketcher.Constraint("PointOnObject", 0, 3, -1))
sketch13.addConstraint(Sketcher.Constraint("Diameter", 0, Q("2.5 mm")))
sketch13.addConstraint(Sketcher.Constraint("DistanceX", 0, 3, -1, 1, Q("95 mm")))
doc.recompute()
hole3 = body.newObject("PartDesign::Hole", "Hole002")
hole3.Profile = sketch13
hole3.ThreadType = "None"
hole3.Diameter = 2.5
hole3.DepthType = "ThroughAll"
hole3.Reversed = True
doc.recompute()

mirrored3 = body.newObject("PartDesign::Mirrored", "Mirrored002")
mirrored3.Originals = [hole3]
mirrored3.MirrorPlane = (doc.getObject("YZ_Plane"), [""])
body.Tip = mirrored3

doc.recompute()
